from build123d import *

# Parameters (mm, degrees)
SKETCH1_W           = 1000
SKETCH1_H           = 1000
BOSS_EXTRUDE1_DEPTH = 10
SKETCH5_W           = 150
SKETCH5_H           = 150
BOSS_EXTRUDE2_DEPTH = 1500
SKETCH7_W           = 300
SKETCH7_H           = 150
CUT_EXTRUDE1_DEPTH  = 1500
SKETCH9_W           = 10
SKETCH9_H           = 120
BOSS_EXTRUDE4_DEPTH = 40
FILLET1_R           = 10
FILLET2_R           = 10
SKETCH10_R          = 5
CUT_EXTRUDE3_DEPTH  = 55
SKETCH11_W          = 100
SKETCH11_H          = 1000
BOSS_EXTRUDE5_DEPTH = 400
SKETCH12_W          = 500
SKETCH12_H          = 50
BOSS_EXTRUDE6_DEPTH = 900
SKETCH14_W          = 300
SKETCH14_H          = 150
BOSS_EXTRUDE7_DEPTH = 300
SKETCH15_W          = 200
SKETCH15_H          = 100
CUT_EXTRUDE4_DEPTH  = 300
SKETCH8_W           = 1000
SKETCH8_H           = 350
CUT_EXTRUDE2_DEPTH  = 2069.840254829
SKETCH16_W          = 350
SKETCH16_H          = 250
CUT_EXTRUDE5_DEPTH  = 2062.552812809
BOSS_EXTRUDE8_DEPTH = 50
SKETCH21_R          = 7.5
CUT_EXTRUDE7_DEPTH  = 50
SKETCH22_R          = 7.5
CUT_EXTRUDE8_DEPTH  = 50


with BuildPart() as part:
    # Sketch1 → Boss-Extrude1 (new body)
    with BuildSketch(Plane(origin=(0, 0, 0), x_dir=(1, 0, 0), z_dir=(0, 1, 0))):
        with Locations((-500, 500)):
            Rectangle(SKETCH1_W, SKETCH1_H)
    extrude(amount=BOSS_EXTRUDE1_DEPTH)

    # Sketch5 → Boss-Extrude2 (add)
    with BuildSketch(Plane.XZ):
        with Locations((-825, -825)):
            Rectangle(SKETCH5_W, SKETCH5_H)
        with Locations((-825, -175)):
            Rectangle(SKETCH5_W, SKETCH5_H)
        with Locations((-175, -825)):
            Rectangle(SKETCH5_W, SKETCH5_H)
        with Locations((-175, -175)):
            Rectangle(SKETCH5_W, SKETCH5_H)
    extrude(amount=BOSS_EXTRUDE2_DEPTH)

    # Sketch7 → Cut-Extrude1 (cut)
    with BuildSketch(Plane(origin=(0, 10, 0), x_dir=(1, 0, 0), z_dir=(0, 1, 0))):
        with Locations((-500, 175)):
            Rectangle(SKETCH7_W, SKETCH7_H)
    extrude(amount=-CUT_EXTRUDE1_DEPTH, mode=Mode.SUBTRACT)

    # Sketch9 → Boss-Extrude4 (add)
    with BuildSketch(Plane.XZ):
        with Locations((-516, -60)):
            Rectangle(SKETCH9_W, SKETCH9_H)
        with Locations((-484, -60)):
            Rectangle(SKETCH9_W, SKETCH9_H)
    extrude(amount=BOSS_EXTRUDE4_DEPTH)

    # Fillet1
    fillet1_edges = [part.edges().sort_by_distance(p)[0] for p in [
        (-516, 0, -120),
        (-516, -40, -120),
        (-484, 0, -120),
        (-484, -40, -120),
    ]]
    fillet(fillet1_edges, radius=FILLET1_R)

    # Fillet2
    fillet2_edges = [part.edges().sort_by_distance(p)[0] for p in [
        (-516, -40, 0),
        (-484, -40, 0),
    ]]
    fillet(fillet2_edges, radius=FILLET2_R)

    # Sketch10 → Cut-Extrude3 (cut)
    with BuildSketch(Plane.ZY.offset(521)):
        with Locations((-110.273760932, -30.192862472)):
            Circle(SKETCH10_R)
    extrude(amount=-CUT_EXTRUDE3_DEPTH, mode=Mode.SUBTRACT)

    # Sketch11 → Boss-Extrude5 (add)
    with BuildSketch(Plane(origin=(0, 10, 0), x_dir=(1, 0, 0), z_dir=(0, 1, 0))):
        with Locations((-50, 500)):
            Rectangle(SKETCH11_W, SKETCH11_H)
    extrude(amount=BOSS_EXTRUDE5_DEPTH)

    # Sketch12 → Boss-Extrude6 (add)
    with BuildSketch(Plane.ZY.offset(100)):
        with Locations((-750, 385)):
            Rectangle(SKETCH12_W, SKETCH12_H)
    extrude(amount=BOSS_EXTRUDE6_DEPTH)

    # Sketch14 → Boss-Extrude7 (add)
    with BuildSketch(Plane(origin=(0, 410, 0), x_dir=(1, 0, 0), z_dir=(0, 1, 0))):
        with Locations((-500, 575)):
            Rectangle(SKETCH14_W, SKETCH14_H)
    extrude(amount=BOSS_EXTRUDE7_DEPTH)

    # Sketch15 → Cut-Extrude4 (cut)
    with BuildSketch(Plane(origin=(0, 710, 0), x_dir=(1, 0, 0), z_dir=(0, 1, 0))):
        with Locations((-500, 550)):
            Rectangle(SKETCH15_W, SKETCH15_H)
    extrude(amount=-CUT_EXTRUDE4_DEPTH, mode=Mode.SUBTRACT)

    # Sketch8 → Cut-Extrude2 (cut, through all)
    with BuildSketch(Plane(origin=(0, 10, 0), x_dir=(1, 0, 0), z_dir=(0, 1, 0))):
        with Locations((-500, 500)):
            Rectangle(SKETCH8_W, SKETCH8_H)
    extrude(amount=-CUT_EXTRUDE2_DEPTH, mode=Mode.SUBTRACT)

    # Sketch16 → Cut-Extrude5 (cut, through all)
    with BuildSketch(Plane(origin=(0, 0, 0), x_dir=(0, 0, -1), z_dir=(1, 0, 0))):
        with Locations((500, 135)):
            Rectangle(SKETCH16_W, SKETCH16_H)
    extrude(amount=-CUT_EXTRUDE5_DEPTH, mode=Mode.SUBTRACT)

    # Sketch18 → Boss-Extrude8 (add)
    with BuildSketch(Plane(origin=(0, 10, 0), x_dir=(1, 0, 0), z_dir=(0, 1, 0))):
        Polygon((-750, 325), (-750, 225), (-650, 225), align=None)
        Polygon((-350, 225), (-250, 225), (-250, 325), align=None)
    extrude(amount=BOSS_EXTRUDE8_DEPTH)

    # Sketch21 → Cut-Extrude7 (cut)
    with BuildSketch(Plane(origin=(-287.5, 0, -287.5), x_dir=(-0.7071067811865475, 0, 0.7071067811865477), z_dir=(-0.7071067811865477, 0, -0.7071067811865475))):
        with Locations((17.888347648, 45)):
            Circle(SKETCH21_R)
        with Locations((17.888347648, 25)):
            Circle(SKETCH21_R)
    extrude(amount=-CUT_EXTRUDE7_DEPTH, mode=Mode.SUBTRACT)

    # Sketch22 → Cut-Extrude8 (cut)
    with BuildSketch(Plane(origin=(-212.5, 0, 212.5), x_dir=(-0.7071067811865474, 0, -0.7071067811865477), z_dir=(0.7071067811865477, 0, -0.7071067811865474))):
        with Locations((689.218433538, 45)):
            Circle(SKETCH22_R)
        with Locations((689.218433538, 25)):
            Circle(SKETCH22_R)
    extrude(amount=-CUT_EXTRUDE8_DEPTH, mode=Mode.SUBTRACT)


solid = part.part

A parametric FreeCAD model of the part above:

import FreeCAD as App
import Part
import Sketcher

V = App.Vector


def edges_at(feature, points):
    """Names of the edges that pass closest to the given points."""
    edges = feature.Shape.Edges
    near = lambda p: min(range(len(edges)), key=lambda i: edges[i].distToShape(Part.Vertex(*p))[0])
    return sorted({f"Edge{near(p) + 1}" for p in points})

doc = App.newDocument("Part")
body = doc.addObject("PartDesign::Body", "Body")

sketch1 = body.newObject("Sketcher::SketchObject", "Sketch")
sketch1.AttachmentSupport = (doc.getObject("XZ_Plane"), [""])
sketch1.MapMode = "FlatFace"
sketch1.addGeometry([
    Part.LineSegment(V(-1000, -1000, 0), V(-1000, 0, 0)),
    Part.LineSegment(V(-1000, 0, 0), V(0, 0, 0)),
    Part.LineSegment(V(0, 0, 0), V(0, -1000, 0)),
    Part.LineSegment(V(0, -1000, 0), V(-1000, -1000, 0)),
], False)
sketch1.addConstraint([
    Sketcher.Constraint("Coincident", 0, 2, 1, 1),
    Sketcher.Constraint("Coincident", 1, 2, 2, 1),
    Sketcher.Constraint("Coincident", 2, 2, 3, 1),
    Sketcher.Constraint("Coincident", 3, 2, 0, 1),
    Sketcher.Constraint("Vertical", 0),
    Sketcher.Constraint("Horizontal", 1),
    Sketcher.Constraint("Vertical", 2),
    Sketcher.Constraint("Horizontal", 3),
    Sketcher.Constraint("Coincident", 1, 2, -1, 1),
    Sketcher.Constraint("Equal", 3, 0),
    Sketcher.Constraint("DistanceX", 1, 1, 1, 2, 1000.0),
])
pad1 = body.newObject("PartDesign::Pad", "Pad")
pad1.Profile = sketch1
pad1.Length = 10
pad1.Reversed = True

sketch2 = body.newObject("Sketcher::SketchObject", "Sketch001")
sketch2.AttachmentSupport = (doc.getObject("XZ_Plane"), [""])
sketch2.MapMode = "FlatFace"
sketch2.addGeometry([
    Part.LineSegment(V(-900, -750, 0), V(-900, -900, 0)),
    Part.LineSegment(V(-900, -900, 0), V(-750, -900, 0)),
    Part.LineSegment(V(-750, -900, 0), V(-750, -750, 0)),
    Part.LineSegment(V(-750, -750, 0), V(-900, -750, 0)),
    Part.LineSegment(V(-900, -100, 0), V(-900, -250, 0)),
    Part.LineSegment(V(-900, -250, 0), V(-750, -250, 0)),
    Part.LineSegment(V(-750, -250, 0), V(-750, -100, 0)),
    Part.LineSegment(V(-750, -100, 0), V(-900, -100, 0)),
    Part.LineSegment(V(-250, -750, 0), V(-250, -900, 0)),
    Part.LineSegment(V(-250, -900, 0), V(-100, -900, 0)),
    Part.LineSegment(V(-100, -900, 0), V(-100, -750, 0)),
    Part.LineSegment(V(-100, -750, 0), V(-250, -750, 0)),
    Part.LineSegment(V(-250, -100, 0), V(-250, -250, 0)),
    Part.LineSegment(V(-250, -250, 0), V(-100, -250, 0)),
    Part.LineSegment(V(-100, -250, 0), V(-100, -100, 0)),
    Part.LineSegment(V(-100, -100, 0), V(-250, -100, 0)),
], False)
sketch2.addConstraint([
    Sketcher.Constraint("Coincident", 0, 2, 1, 1),
    Sketcher.Constraint("Coincident", 1, 2, 2, 1),
    Sketcher.Constraint("Coincident", 2, 2, 3, 1),
    Sketcher.Constraint("Coincident", 3, 2, 0, 1),
    Sketcher.Constraint("Coincident", 4, 2, 5, 1),
    Sketcher.Constraint("Coincident", 5, 2, 6, 1),
    Sketcher.Constraint("Coincident", 6, 2, 7, 1),
    Sketcher.Constraint("Coincident", 7, 2, 4, 1),
    Sketcher.Constraint("Coincident", 8, 2, 9, 1),
    Sketcher.Constraint("Coincident", 9, 2, 10, 1),
    Sketcher.Constraint("Coincident", 10, 2, 11, 1),
    Sketcher.Constraint("Coincident", 11, 2, 8, 1),
    Sketcher.Constraint("Coincident", 12, 2, 13, 1),
    Sketcher.Constraint("Coincident", 13, 2, 14, 1),
    Sketcher.Constraint("Coincident", 14, 2, 15, 1),
    Sketcher.Constraint("Coincident", 15, 2, 12, 1),
    Sketcher.Constraint("Vertical", 0),
    Sketcher.Constraint("Horizontal", 1),
    Sketcher.Constraint("Vertical", 2),
    Sketcher.Constraint("Horizontal", 3),
    Sketcher.Constraint("Vertical", 4),
    Sketcher.Constraint("Horizontal", 5),
    Sketcher.Constraint("Vertical", 6),
    Sketcher.Constraint("Horizontal", 7),
    Sketcher.Constraint("Vertical", 8),
    Sketcher.Constraint("Horizontal", 9),
    Sketcher.Constraint("Vertical", 10),
    Sketcher.Constraint("Horizontal", 11),
    Sketcher.Constraint("Vertical", 12),
    Sketcher.Constraint("Horizontal", 13),
    Sketcher.Constraint("Vertical", 14),
    Sketcher.Constraint("Horizontal", 15),
    Sketcher.Constraint("Horizontal", 1, 2, 8, 2),
    Sketcher.Constraint("Horizontal", 3, 2, 10, 2),
    Sketcher.Constraint("Horizontal", 5, 2, 12, 2),
    Sketcher.Constraint("Horizontal", 7, 2, 14, 2),
    Sketcher.Constraint("Vertical", 3, 2, 4, 2),
    Sketcher.Constraint("Vertical", 2, 2, 5, 2),
    Sketcher.Constraint("Vertical", 11, 2, 12, 2),
    Sketcher.Constraint("Vertical", 10, 2, 13, 2),
    Sketcher.Constraint("Equal", 7, 9),
    Sketcher.Constraint("Equal", 15, 0),
    Sketcher.Constraint("Equal", 2, 4),
    Sketcher.Constraint("DistanceX", 1, 1, 1, 2, 150.0),
    Sketcher.Constraint("DistanceX", 0, 2, -1, 1, 900.0),
    Sketcher.Constraint("DistanceY", 0, 2, -1, 1, 900.0),
    Sketcher.Constraint("DistanceY", 4, 2, -1, 1, 250.0),
    Sketcher.Constraint("DistanceX", 8, 2, -1, 1, 250.0),
])
pad2 = body.newObject("PartDesign::Pad", "Pad001")
pad2.Profile = sketch2
pad2.Length = 1500

sketch3 = body.newObject("Sketcher::SketchObject", "Sketch002")
sketch3.AttachmentSupport = (doc.getObject("XZ_Plane"), [""])
sketch3.MapMode = "FlatFace"
sketch3.AttachmentOffset = App.Placement(V(0, 0, -10), App.Rotation())
sketch3.addGeometry([
    Part.LineSegment(V(-650, -250, 0), V(-650, -100, 0)),
    Part.LineSegment(V(-650, -100, 0), V(-350, -100, 0)),
    Part.LineSegment(V(-350, -100, 0), V(-350, -250, 0)),
    Part.LineSegment(V(-350, -250, 0), V(-650, -250, 0)),
], False)
sketch3.addConstraint([
    Sketcher.Constraint("Coincident", 0, 2, 1, 1),
    Sketcher.Constraint("Coincident", 1, 2, 2, 1),
    Sketcher.Constraint("Coincident", 2, 2, 3, 1),
    Sketcher.Constraint("Coincident", 3, 2, 0, 1),
    Sketcher.Constraint("Vertical", 0),
    Sketcher.Constraint("Horizontal", 1),
    Sketcher.Constraint("Vertical", 2),
    Sketcher.Constraint("Horizontal", 3),
    Sketcher.Constraint("DistanceX", 1, 1, 1, 2, 300.0),
    Sketcher.Constraint("DistanceY", 0, 1, 0, 2, 150.0),
    Sketcher.Constraint("DistanceX", 0, 2, -1, 1, 650.0),
    Sketcher.Constraint("DistanceY", 0, 2, -1, 1, 100.0),
])
pocket1 = body.newObject("PartDesign::Pocket", "Pocket")
pocket1.Profile = sketch3
pocket1.Length = 1500
pocket1.Reversed = True

sketch4 = body.newObject("Sketcher::SketchObject", "Sketch003")
sketch4.AttachmentSupport = (doc.getObject("XZ_Plane"), [""])
sketch4.MapMode = "FlatFace"
sketch4.addGeometry([
    Part.LineSegment(V(-521, 0, 0), V(-521, -120, 0)),
    Part.LineSegment(V(-521, -120, 0), V(-511, -120, 0)),
    Part.LineSegment(V(-511, -120, 0), V(-511, 0, 0)),
    Part.LineSegment(V(-511, 0, 0), V(-521, 0, 0)),
    Part.LineSegment(V(-489, 0, 0), V(-489, -120, 0)),
    Part.LineSegment(V(-489, -120, 0), V(-479, -120, 0)),
    Part.LineSegment(V(-479, -120, 0), V(-479, 0, 0)),
    Part.LineSegment(V(-479, 0, 0), V(-489, 0, 0)),
], False)
sketch4.addConstraint([
    Sketcher.Constraint("Coincident", 0, 2, 1, 1),
    Sketcher.Constraint("Coincident", 1, 2, 2, 1),
    Sketcher.Constraint("Coincident", 2, 2, 3, 1),
    Sketcher.Constraint("Coincident", 3, 2, 0, 1),
    Sketcher.Constraint("Coincident", 4, 2, 5, 1),
    Sketcher.Constraint("Coincident", 5, 2, 6, 1),
    Sketcher.Constraint("Coincident", 6, 2, 7, 1),
    Sketcher.Constraint("Coincident", 7, 2, 4, 1),
    Sketcher.Constraint("Vertical", 0),
    Sketcher.Constraint("Horizontal", 1),
    Sketcher.Constraint("Vertical", 2),
    Sketcher.Constraint("Horizontal", 3),
    Sketcher.Constraint("Vertical", 4),
    Sketcher.Constraint("Horizontal", 5),
    Sketcher.Constraint("Vertical", 6),
    Sketcher.Constraint("Horizontal", 7),
    Sketcher.Constraint("PointOnObject", 2, 2, -1),
    Sketcher.Constraint("PointOnObject", 6, 2, -1),
    Sketcher.Constraint("Horizontal", 1, 2, 4, 2),
    Sketcher.Constraint("Equal", 3, 5),
    Sketcher.Constraint("DistanceX", 1, 1, 1, 2, 10.0),
    Sketcher.Constraint("DistanceY", 0, 2, 0, 1, 120.0),
    Sketcher.Constraint("DistanceX", 0, 2, -1, 1, 521.0),
    Sketcher.Constraint("DistanceX", 4, 2, -1, 1, 489.0),
])
pad3 = body.newObject("PartDesign::Pad", "Pad002")
pad3.Profile = sketch4
pad3.Length = 40
doc.recompute()

fillet = body.newObject("PartDesign::Fillet", "Fillet")
fillet.Base = (pad3, edges_at(pad3, [
    (-516, 0, -120),
    (-516, -40, -120),
    (-484, 0, -120),
    (-484, -40, -120),
]))
fillet.Radius = 10
doc.recompute()

fillet2 = body.newObject("PartDesign::Fillet", "Fillet001")
fillet2.Base = (fillet, edges_at(fillet, [(-516, -40, 0), (-484, -40, 0)]))
fillet2.Radius = 10

sketch5 = body.newObject("Sketcher::SketchObject", "Sketch004")
sketch5.AttachmentSupport = (doc.getObject("YZ_Plane"), [""])
sketch5.MapMode = "FlatFace"
sketch5.AttachmentOffset = App.Placement(V(0, 0, -521), App.Rotation())
sketch5.addGeometry(Part.Circle(V(-30, -110, 0), V(0, 0, 1), 5), False)
sketch5.addConstraint([
    Sketcher.Constraint("Diameter", 0, 10.0),
    Sketcher.Constraint("DistanceY", 0, 3, -1, 1, 110.273761),
    Sketcher.Constraint("DistanceX", 0, 3, -1, 1, 30.192862),
])
pocket2 = body.newObject("PartDesign::Pocket", "Pocket001")
pocket2.Profile = sketch5
pocket2.Length = 55
pocket2.Reversed = True

sketch6 = body.newObject("Sketcher::SketchObject", "Sketch005")
sketch6.AttachmentSupport = (doc.getObject("XZ_Plane"), [""])
sketch6.MapMode = "FlatFace"
sketch6.AttachmentOffset = App.Placement(V(0, 0, -10), App.Rotation())
sketch6.addGeometry([
    Part.LineSegment(V(-100, -1000, 0), V(-100, 0, 0)),
    Part.LineSegment(V(-100, 0, 0), V(0, 0, 0)),
    Part.LineSegment(V(0, 0, 0), V(0, -1000, 0)),
    Part.LineSegment(V(0, -1000, 0), V(-100, -1000, 0)),
], False)
sketch6.addConstraint([
    Sketcher.Constraint("Coincident", 0, 2, 1, 1),
    Sketcher.Constraint("Coincident", 1, 2, 2, 1),
    Sketcher.Constraint("Coincident", 2, 2, 3, 1),
    Sketcher.Constraint("Coincident", 3, 2, 0, 1),
    Sketcher.Constraint("Vertical", 0),
    Sketcher.Constraint("Horizontal", 1),
    Sketcher.Constraint("Vertical", 2),
    Sketcher.Constraint("Horizontal", 3),
    Sketcher.Constraint("Coincident", 1, 2, -1, 1),
    Sketcher.Constraint("DistanceX", 1, 1, 1, 2, 100.0),
    Sketcher.Constraint("DistanceY", 0, 1, 0, 2, 1000.0),
])
pad4 = body.newObject("PartDesign::Pad", "Pad003")
pad4.Profile = sketch6
pad4.Length = 400
pad4.Reversed = True

sketch7 = body.newObject("Sketcher::SketchObject", "Sketch006")
sketch7.AttachmentSupport = (doc.getObject("YZ_Plane"), [""])
sketch7.MapMode = "FlatFace"
sketch7.AttachmentOffset = App.Placement(V(0, 0, -100), App.Rotation())
sketch7.addGeometry([
    Part.LineSegment(V(410, -1000, 0), V(360, -1000, 0)),
    Part.LineSegment(V(360, -1000, 0), V(360, -500, 0)),
    Part.LineSegment(V(360, -500, 0), V(410, -500, 0)),
    Part.LineSegment(V(410, -500, 0), V(410, -1000, 0)),
], False)
sketch7.addConstraint([
    Sketcher.Constraint("Coincident", 0, 2, 1, 1),
    Sketcher.Constraint("Coincident", 1, 2, 2, 1),
    Sketcher.Constraint("Coincident", 2, 2, 3, 1),
    Sketcher.Constraint("Coincident", 3, 2, 0, 1),
    Sketcher.Constraint("Horizontal", 0),
    Sketcher.Constraint("Vertical", 1),
    Sketcher.Constraint("Horizontal", 2),
    Sketcher.Constraint("Vertical", 3),
    Sketcher.Constraint("DistanceX", 0, 2, 0, 1, 50.0),
    Sketcher.Constraint("DistanceY", 1, 1, 1, 2, 500.0),
    Sketcher.Constraint("DistanceX", -1, 1, 0, 2, 360.0),
    Sketcher.Constraint("DistanceY", 0, 2, -1, 1, 1000.0),
])
pad5 = body.newObject("PartDesign::Pad", "Pad004")
pad5.Profile = sketch7
pad5.Length = 900
pad5.Reversed = True

sketch8 = body.newObject("Sketcher::SketchObject", "Sketch007")
sketch8.AttachmentSupport = (doc.getObject("XZ_Plane"), [""])
sketch8.MapMode = "FlatFace"
sketch8.AttachmentOffset = App.Placement(V(0, 0, -410), App.Rotation())
sketch8.addGeometry([
    Part.LineSegment(V(-650, -650, 0), V(-650, -500, 0)),
    Part.LineSegment(V(-650, -500, 0), V(-350, -500, 0)),
    Part.LineSegment(V(-350, -500, 0), V(-350, -650, 0)),
    Part.LineSegment(V(-350, -650, 0), V(-650, -650, 0)),
], False)
sketch8.addConstraint([
    Sketcher.Constraint("Coincident", 0, 2, 1, 1),
    Sketcher.Constraint("Coincident", 1, 2, 2, 1),
    Sketcher.Constraint("Coincident", 2, 2, 3, 1),
    Sketcher.Constraint("Coincident", 3, 2, 0, 1),
    Sketcher.Constraint("Vertical", 0),
    Sketcher.Constraint("Horizontal", 1),
    Sketcher.Constraint("Vertical", 2),
    Sketcher.Constraint("Horizontal", 3),
    Sketcher.Constraint("DistanceX", 1, 1, 1, 2, 300.0),
    Sketcher.Constraint("DistanceY", 0, 1, 0, 2, 150.0),
    Sketcher.Constraint("DistanceX", 0, 2, -1, 1, 650.0),
    Sketcher.Constraint("DistanceY", 0, 2, -1, 1, 500.0),
])
pad6 = body.newObject("PartDesign::Pad", "Pad005")
pad6.Profile = sketch8
pad6.Length = 300
pad6.Reversed = True

sketch9 = body.newObject("Sketcher::SketchObject", "Sketch008")
sketch9.AttachmentSupport = (doc.getObject("XZ_Plane"), [""])
sketch9.MapMode = "FlatFace"
sketch9.AttachmentOffset = App.Placement(V(0, 0, -710), App.Rotation())
sketch9.addGeometry([
    Part.LineSegment(V(-600, -600, 0), V(-600, -500, 0)),
    Part.LineSegment(V(-600, -500, 0), V(-400, -500, 0)),
    Part.LineSegment(V(-400, -500, 0), V(-400, -600, 0)),
    Part.LineSegment(V(-400, -600, 0), V(-600, -600, 0)),
], False)
sketch9.addConstraint([
    Sketcher.Constraint("Coincident", 0, 2, 1, 1),
    Sketcher.Constraint("Coincident", 1, 2, 2, 1),
    Sketcher.Constraint("Coincident", 2, 2, 3, 1),
    Sketcher.Constraint("Coincident", 3, 2, 0, 1),
    Sketcher.Constraint("Vertical", 0),
    Sketcher.Constraint("Horizontal", 1),
    Sketcher.Constraint("Vertical", 2),
    Sketcher.Constraint("Horizontal", 3),
    Sketcher.Constraint("DistanceX", 1, 1, 1, 2, 200.0),
    Sketcher.Constraint("DistanceY", 0, 1, 0, 2, 100.0),
    Sketcher.Constraint("DistanceX", 0, 2, -1, 1, 600.0),
    Sketcher.Constraint("DistanceY", 0, 2, -1, 1, 500.0),
])
pocket3 = body.newObject("PartDesign::Pocket", "Pocket002")
pocket3.Profile = sketch9
pocket3.Length = 300
pocket3.Reversed = True

sketch10 = body.newObject("Sketcher::SketchObject", "Sketch009")
sketch10.AttachmentSupport = (doc.getObject("XZ_Plane"), [""])
sketch10.MapMode = "FlatFace"
sketch10.AttachmentOffset = App.Placement(V(0, 0, -10), App.Rotation())
sketch10.addGeometry([
    Part.LineSegment(V(-1000, -675, 0), V(-1000, -325, 0)),
    Part.LineSegment(V(-1000, -325, 0), V(0, -325, 0)),
    Part.LineSegment(V(0, -325, 0), V(0, -675, 0)),
    Part.LineSegment(V(0, -675, 0), V(-1000, -675, 0)),
], False)
sketch10.addConstraint([
    Sketcher.Constraint("Coincident", 0, 2, 1, 1),
    Sketcher.Constraint("Coincident", 1, 2, 2, 1),
    Sketcher.Constraint("Coincident", 2, 2, 3, 1),
    Sketcher.Constraint("Coincident", 3, 2, 0, 1),
    Sketcher.Constraint("Vertical", 0),
    Sketcher.Constraint("Horizontal", 1),
    Sketcher.Constraint("Vertical", 2),
    Sketcher.Constraint("Horizontal", 3),
    Sketcher.Constraint("PointOnObject", 1, 2, -2),
    Sketcher.Constraint("DistanceX", 1, 1, 1, 2, 1000.0),
    Sketcher.Constraint("DistanceY", 0, 1, 0, 2, 350.0),
    Sketcher.Constraint("DistanceY", 0, 2, -1, 1, 325.0),
])
pocket4 = body.newObject("PartDesign::Pocket", "Pocket003")
pocket4.Profile = sketch10
pocket4.Type = "ThroughAll"
pocket4.Reversed = True

sketch11 = body.newObject("Sketcher::SketchObject", "Sketch010")
sketch11.AttachmentSupport = (doc.getObject("YZ_Plane"), [""])
sketch11.MapMode = "FlatFace"
sketch11.addGeometry([
    Part.LineSegment(V(260, -325, 0), V(10, -325, 0)),
    Part.LineSegment(V(10, -325, 0), V(10, -675, 0)),
    Part.LineSegment(V(10, -675, 0), V(260, -675, 0)),
    Part.LineSegment(V(260, -675, 0), V(260, -325, 0)),
], False)
sketch11.addConstraint([
    Sketcher.Constraint("Coincident", 0, 2, 1, 1),
    Sketcher.Constraint("Coincident", 1, 2, 2, 1),
    Sketcher.Constraint("Coincident", 2, 2, 3, 1),
    Sketcher.Constraint("Coincident", 3, 2, 0, 1),
    Sketcher.Constraint("Horizontal", 0),
    Sketcher.Constraint("Vertical", 1),
    Sketcher.Constraint("Horizontal", 2),
    Sketcher.Constraint("Vertical", 3),
    Sketcher.Constraint("DistanceX", 0, 2, 0, 1, 250.0),
    Sketcher.Constraint("DistanceY", 1, 2, 1, 1, 350.0),
    Sketcher.Constraint("DistanceX", -1, 1, 0, 2, 10.0),
    Sketcher.Constraint("DistanceY", 0, 2, -1, 1, 325.0),
])
pocket5 = body.newObject("PartDesign::Pocket", "Pocket004")
pocket5.Profile = sketch11
pocket5.Type = "ThroughAll"

sketch12 = body.newObject("Sketcher::SketchObject", "Sketch011")
sketch12.AttachmentSupport = (doc.getObject("XZ_Plane"), [""])
sketch12.MapMode = "FlatFace"
sketch12.AttachmentOffset = App.Placement(V(0, 0, -10), App.Rotation())
sketch12.addGeometry([
    Part.LineSegment(V(-750, -325, 0), V(-750, -225, 0)),
    Part.LineSegment(V(-750, -225, 0), V(-650, -225, 0)),
    Part.LineSegment(V(-650, -225, 0), V(-750, -325, 0)),
    Part.LineSegment(V(-350, -225, 0), V(-250, -225, 0)),
    Part.LineSegment(V(-250, -225, 0), V(-250, -325, 0)),
    Part.LineSegment(V(-250, -325, 0), V(-350, -225, 0)),
], False)
sketch12.addConstraint([
    Sketcher.Constraint("Coincident", 0, 2, 1, 1),
    Sketcher.Constraint("Coincident", 1, 2, 2, 1),
    Sketcher.Constraint("Coincident", 2, 2, 0, 1),
    Sketcher.Constraint("Coincident", 3, 2, 4, 1),
    Sketcher.Constraint("Coincident", 4, 2, 5, 1),
    Sketcher.Constraint("Coincident", 5, 2, 3, 1),
    Sketcher.Constraint("Vertical", 0),
    Sketcher.Constraint("Horizontal", 1),
    Sketcher.Constraint("Horizontal", 3),
    Sketcher.Constraint("Vertical", 4),
    Sketcher.Constraint("Perpendicular", 2, 5),
    Sketcher.Constraint("Horizontal", 1, 2, 3, 2),
    Sketcher.Constraint("Horizontal", 2, 2, 4, 2),
    Sketcher.Constraint("Equal", 1, 3),
    Sketcher.Constraint("DistanceX", 1, 1, 1, 2, 100.0),
    Sketcher.Constraint("DistanceX", 0, 2, -1, 1, 750.0),
    Sketcher.Constraint("DistanceY", 0, 2, -1, 1, 225.0),
    Sketcher.Constraint("DistanceX", 3, 2, -1, 1, 250.0),
])
pad7 = body.newObject("PartDesign::Pad", "Pad006")
pad7.Profile = sketch12
pad7.Length = 50
pad7.Reversed = True

sketch13 = body.newObject("Sketcher::SketchObject", "Sketch012")
sketch13.Placement = App.Placement(V(-287.5, 0, -287.5), App.Rotation(V(-0.707106781, 0, 0.707106781), V(0, 0.999999999, 0), V(-0.707106781, 0, -0.707106781), "ZXY"))
sketch13.addGeometry([
    Part.Circle(V(18, 45, 0), V(0, 0, 1), 8),
    Part.Circle(V(18, 25, 0), V(0, 0, 1), 8),
], False)
sketch13.addConstraint([
    Sketcher.Constraint("Equal", 0, 1),
    Sketcher.Constraint("Vertical", 0, 3, 1, 3),
    Sketcher.Constraint("Diameter", 0, 15.0),
    Sketcher.Constraint("DistanceY", -1, 1, 0, 3, 45.0),
    Sketcher.Constraint("DistanceY", -1, 1, 1, 3, 25.0),
    Sketcher.Constraint("DistanceX", -1, 1, 0, 3, 17.888348),
])
pocket6 = body.newObject("PartDesign::Pocket", "Pocket005")
pocket6.Profile = sketch13
pocket6.Length = 50

sketch14 = body.newObject("Sketcher::SketchObject", "Sketch013")
sketch14.Placement = App.Placement(V(-212.5, 0, 212.5), App.Rotation(V(-0.707106781, 0, -0.707106781), V(0, 0.999999999, 0), V(0.707106781, 0, -0.707106781), "ZXY"))
sketch14.addGeometry([
    Part.Circle(V(689, 45, 0), V(0, 0, 1), 8),
    Part.Circle(V(689, 25, 0), V(0, 0, 1), 8),
], False)
sketch14.addConstraint([
    Sketcher.Constraint("Equal", 0, 1),
    Sketcher.Constraint("Vertical", 0, 3, 1, 3),
    Sketcher.Constraint("Diameter", 0, 15.0),
    Sketcher.Constraint("DistanceY", -1, 1, 0, 3, 45.0),
    Sketcher.Constraint("DistanceY", -1, 1, 1, 3, 25.0),
    Sketcher.Constraint("DistanceX", -1, 1, 0, 3, 689.218433),
])
pocket7 = body.newObject("PartDesign::Pocket", "Pocket006")
pocket7.Profile = sketch14
pocket7.Length = 50

doc.recompute()
